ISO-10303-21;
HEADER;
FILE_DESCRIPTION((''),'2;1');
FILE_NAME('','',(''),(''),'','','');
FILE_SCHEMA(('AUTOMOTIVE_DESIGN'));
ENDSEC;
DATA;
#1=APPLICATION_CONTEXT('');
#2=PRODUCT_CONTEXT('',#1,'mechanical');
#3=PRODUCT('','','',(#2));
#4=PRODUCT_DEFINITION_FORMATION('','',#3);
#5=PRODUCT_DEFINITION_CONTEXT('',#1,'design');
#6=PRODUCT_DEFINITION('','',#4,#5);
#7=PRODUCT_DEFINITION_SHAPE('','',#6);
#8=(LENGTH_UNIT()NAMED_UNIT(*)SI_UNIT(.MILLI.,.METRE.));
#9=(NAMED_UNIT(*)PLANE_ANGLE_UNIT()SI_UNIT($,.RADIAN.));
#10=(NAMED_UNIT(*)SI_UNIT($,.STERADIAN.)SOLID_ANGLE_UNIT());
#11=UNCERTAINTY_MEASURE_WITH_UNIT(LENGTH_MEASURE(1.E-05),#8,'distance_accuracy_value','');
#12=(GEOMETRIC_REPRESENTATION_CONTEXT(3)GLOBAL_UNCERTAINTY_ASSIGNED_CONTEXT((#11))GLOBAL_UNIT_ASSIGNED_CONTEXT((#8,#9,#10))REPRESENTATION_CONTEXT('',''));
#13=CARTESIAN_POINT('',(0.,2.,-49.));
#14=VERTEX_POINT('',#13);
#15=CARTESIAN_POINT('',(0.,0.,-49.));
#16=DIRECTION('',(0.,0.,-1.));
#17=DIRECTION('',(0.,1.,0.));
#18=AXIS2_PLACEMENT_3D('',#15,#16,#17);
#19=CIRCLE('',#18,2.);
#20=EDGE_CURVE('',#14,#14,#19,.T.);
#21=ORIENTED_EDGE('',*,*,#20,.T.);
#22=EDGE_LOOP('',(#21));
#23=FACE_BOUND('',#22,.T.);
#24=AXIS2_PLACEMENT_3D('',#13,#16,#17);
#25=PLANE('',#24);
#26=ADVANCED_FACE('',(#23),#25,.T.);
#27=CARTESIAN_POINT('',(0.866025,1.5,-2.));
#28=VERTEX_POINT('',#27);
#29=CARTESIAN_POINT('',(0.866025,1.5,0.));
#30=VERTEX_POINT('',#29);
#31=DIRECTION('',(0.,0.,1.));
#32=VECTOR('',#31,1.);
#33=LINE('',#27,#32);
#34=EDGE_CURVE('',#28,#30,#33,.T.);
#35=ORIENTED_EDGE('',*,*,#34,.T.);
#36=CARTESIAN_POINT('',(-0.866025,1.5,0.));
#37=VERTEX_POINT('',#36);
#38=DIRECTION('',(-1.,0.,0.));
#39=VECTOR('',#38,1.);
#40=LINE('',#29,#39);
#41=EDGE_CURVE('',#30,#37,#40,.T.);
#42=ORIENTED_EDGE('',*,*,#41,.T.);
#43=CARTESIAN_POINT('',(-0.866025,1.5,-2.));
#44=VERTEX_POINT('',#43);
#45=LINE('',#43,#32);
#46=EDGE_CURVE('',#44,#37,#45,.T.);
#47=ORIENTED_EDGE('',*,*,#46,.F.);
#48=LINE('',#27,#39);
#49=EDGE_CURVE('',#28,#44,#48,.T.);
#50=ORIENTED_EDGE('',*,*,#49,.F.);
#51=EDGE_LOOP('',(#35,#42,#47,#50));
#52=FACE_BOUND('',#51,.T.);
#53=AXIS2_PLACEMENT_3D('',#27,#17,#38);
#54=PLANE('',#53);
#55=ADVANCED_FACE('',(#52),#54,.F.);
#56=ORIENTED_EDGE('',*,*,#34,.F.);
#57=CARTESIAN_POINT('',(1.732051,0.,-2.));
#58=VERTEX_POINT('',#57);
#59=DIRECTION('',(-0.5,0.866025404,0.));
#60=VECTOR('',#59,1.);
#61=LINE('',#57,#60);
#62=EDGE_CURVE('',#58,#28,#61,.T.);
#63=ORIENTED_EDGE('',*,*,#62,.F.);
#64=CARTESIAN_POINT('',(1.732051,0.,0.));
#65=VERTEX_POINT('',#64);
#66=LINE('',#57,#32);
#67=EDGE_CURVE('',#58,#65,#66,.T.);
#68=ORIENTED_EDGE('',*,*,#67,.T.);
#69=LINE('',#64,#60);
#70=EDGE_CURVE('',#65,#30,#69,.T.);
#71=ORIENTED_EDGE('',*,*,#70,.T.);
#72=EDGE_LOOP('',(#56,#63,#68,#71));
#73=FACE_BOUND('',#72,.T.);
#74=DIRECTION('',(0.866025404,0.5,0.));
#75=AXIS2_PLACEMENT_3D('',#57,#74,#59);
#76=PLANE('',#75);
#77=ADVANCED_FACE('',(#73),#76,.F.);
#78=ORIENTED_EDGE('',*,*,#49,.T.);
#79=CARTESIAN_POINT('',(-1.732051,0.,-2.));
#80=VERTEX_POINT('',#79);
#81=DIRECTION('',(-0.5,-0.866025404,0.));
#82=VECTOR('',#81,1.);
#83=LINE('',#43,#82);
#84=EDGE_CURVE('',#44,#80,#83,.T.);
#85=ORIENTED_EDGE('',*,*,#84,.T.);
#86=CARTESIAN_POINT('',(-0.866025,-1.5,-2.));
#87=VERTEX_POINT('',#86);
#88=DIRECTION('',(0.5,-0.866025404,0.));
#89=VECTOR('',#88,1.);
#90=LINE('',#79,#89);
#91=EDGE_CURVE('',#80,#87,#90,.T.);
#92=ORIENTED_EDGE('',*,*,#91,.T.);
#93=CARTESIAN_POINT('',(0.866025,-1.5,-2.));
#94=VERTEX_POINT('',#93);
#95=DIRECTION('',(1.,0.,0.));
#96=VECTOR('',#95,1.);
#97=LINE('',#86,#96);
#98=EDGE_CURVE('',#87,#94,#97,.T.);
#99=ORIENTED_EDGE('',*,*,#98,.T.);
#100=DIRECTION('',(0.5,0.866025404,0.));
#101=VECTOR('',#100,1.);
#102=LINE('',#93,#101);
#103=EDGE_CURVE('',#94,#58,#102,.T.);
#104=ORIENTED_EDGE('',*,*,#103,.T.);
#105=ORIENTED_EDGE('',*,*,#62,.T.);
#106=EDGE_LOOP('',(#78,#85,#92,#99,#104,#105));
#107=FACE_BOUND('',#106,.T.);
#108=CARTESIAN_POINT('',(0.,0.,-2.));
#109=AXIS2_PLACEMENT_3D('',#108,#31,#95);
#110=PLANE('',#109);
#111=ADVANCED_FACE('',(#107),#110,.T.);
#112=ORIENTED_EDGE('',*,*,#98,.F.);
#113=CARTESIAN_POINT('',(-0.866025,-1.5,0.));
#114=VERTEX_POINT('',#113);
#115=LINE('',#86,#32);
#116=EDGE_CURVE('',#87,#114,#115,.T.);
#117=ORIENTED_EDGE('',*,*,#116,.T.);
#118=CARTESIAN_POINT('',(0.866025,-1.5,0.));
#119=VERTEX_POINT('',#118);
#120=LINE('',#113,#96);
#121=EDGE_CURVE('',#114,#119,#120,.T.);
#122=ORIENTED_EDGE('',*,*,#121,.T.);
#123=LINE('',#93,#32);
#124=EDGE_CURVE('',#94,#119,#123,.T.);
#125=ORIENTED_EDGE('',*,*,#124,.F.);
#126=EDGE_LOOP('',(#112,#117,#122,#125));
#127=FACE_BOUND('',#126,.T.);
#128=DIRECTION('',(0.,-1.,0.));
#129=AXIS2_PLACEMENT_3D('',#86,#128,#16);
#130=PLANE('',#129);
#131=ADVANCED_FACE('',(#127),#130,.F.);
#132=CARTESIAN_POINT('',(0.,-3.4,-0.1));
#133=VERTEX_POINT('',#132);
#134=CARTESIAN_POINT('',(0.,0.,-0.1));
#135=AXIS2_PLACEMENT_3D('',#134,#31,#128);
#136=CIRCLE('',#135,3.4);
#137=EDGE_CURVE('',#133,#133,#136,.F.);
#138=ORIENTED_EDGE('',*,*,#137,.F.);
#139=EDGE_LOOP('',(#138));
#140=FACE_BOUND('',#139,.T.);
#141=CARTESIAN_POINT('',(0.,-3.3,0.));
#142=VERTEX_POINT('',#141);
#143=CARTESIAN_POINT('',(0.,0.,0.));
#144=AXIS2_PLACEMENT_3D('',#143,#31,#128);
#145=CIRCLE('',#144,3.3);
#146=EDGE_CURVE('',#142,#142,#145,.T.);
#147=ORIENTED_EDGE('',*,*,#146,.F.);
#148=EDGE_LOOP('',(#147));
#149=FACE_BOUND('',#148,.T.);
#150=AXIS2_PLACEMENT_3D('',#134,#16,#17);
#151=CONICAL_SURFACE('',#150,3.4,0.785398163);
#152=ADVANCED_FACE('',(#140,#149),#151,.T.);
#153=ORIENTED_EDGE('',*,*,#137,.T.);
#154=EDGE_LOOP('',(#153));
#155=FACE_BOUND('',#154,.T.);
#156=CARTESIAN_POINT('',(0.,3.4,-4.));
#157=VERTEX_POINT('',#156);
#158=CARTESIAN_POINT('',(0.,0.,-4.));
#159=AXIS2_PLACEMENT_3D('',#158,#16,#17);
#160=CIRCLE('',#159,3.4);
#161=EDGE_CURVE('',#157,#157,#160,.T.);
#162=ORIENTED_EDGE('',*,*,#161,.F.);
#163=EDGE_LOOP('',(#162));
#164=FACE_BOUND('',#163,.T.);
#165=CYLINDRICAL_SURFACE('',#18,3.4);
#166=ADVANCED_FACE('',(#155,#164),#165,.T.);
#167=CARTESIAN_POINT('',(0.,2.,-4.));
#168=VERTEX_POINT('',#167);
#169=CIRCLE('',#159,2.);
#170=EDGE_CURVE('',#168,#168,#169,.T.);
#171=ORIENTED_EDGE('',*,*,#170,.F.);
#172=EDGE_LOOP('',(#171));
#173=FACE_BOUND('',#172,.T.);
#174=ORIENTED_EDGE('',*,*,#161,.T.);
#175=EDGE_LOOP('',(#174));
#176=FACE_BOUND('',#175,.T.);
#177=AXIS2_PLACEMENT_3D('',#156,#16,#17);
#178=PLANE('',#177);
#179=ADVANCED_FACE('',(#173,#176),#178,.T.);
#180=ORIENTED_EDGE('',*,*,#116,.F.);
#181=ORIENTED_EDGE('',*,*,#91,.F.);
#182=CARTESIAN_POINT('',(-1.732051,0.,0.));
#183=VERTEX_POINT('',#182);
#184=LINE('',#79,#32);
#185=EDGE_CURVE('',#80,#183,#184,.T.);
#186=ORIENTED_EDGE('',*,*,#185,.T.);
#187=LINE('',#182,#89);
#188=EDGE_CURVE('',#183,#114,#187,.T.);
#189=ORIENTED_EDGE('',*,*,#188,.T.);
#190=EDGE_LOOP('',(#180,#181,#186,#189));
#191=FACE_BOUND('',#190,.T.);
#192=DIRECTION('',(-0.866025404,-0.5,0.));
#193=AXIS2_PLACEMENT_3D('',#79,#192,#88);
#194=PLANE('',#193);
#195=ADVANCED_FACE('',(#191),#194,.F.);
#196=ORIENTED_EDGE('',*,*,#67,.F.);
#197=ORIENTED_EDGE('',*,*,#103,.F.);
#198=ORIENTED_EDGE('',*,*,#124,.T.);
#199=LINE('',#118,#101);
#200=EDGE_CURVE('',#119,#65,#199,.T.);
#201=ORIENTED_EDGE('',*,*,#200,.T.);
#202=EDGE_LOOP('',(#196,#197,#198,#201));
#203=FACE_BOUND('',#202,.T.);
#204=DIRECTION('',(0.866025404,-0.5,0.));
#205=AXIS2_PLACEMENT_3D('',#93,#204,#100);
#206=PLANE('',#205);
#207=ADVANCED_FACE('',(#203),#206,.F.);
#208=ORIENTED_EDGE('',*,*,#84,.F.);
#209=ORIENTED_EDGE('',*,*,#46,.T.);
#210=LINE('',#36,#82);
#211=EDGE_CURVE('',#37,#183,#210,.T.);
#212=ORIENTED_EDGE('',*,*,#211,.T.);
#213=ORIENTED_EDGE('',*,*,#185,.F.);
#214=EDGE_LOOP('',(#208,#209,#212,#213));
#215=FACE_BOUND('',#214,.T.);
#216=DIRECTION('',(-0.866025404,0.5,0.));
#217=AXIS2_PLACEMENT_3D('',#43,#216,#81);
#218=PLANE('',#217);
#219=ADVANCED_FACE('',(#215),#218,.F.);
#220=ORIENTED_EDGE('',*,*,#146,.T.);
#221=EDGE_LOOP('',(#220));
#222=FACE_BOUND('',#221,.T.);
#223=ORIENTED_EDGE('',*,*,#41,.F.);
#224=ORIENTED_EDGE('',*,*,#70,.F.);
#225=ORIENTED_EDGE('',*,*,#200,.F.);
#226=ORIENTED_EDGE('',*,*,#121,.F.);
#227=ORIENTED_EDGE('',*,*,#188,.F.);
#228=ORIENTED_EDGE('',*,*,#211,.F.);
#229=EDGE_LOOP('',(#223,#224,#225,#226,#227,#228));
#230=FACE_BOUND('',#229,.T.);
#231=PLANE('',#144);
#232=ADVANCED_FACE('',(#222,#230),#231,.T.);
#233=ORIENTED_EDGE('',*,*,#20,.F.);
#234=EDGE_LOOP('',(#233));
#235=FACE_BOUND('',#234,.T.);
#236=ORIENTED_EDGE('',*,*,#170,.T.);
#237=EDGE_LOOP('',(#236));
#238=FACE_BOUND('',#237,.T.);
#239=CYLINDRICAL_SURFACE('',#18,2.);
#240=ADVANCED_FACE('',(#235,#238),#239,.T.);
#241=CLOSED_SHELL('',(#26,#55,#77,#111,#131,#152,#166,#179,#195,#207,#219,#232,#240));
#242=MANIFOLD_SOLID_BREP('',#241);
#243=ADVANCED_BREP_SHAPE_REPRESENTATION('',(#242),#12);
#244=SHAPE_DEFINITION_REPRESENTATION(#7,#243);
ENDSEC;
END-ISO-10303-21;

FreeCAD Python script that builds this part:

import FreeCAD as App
import Part
import Sketcher
from FreeCAD import Vector
Q = App.Units.Quantity


def edges_at(feature, points):
    """Names of the edges that pass closest to the given points."""
    edges = feature.Shape.Edges
    near = lambda p: min(range(len(edges)), key=lambda i: edges[i].distToShape(Part.Vertex(*p))[0])
    return sorted({f"Edge{near(p) + 1}" for p in points})


def add_polygon(sketch, points):
    """Adds a closed chain of lines whose ends are joined by coincident constraints."""
    first, n = sketch.GeometryCount, len(points)
    for a, b in zip(points, points[1:] + points[:1]):
        sketch.addGeometry(Part.LineSegment(App.Vector(*a, 0), App.Vector(*b, 0)), False)
    for i in range(n):
        sketch.addConstraint(Sketcher.Constraint("Coincident", first + i, 2, first + (i + 1) % n, 1))

doc = App.newDocument("Part")
body = doc.addObject("PartDesign::Body", "Body")

# Sketch on YZ plane
sketch1 = doc.addObject("Sketcher::SketchObject", "Sketch")
body.addObject(sketch1)
sketch1.AttachmentSupport = (doc.YZ_Plane, [""])
sketch1.MapMode = "FlatFace"
add_polygon(sketch1, [(3.4, 0), (0, 0), (0, -49), (2, -49), (2, -4), (3.4, -4)])  # lines 0-5
sketch1.addConstraint(Sketcher.Constraint("Horizontal", 0))
sketch1.addConstraint(Sketcher.Constraint("Vertical", 1))
sketch1.addConstraint(Sketcher.Constraint("Horizontal", 2))
sketch1.addConstraint(Sketcher.Constraint("Vertical", 3))
sketch1.addConstraint(Sketcher.Constraint("Horizontal", 4))
sketch1.addConstraint(Sketcher.Constraint("Vertical", 5))
sketch1.addConstraint(Sketcher.Constraint("Coincident", 0, 2, -1, 1))
sketch1.addConstraint(Sketcher.Constraint("DistanceX", 2, 1, 2, 2, 2.0))
sketch1.addConstraint(Sketcher.Constraint("DistanceY", 1, 2, 1, 1, 49.0))
sketch1.addConstraint(Sketcher.Constraint("DistanceY", 3, 1, 3, 2, 45.0))
sketch1.addConstraint(Sketcher.Constraint("DistanceX", 0, 2, 0, 1, 3.4))
revolution = doc.addObject("PartDesign::Revolution", "Revolution")
body.addObject(revolution)
revolution.Profile = sketch1
revolution.ReferenceAxis = (sketch1, ["V_Axis"])
revolution.Angle = 360

# Sketch on XY plane
sketch2 = doc.addObject("Sketcher::SketchObject", "Sketch001")
body.addObject(sketch2)
sketch2.AttachmentSupport = (doc.XY_Plane, [""])
sketch2.MapMode = "FlatFace"
add_polygon(sketch2, [(0.9, 1.5), (-0.9, 1.5), (-1.7, 0), (-0.9, -1.5), (0.9, -1.5), (1.7, 0)])  # lines 0-5
sketch2.addConstraint(Sketcher.Constraint("Horizontal", 0))
sketch2.addConstraint(Sketcher.Constraint("Horizontal", 3))
sketch2.addConstraint(Sketcher.Constraint("Symmetric", 0, 2, 3, 2, -1, 1))
sketch2.addConstraint(Sketcher.Constraint("Symmetric", 1, 2, 4, 2, -1, 1))
sketch2.addConstraint(Sketcher.Constraint("PointOnObject", 1, 2, -1))
sketch2.addConstraint(Sketcher.Constraint("Parallel", 2, 5))
sketch2.addConstraint(Sketcher.Constraint("Vertical", 0, 2, 2, 2))
sketch2.addConstraint(Sketcher.Constraint("Angle", 1, Q("-120 deg")))
sketch2.addConstraint(Sketcher.Constraint("DistanceY", 2, 2, 0, 2, 3.0))
sketch2.addConstraint(Sketcher.Constraint("DistanceX", 0, 2, 0, 1, 1.732051))
pocket1 = doc.addObject("PartDesign::Pocket", "Pocket")
body.addObject(pocket1)
pocket1.Profile = sketch2
pocket1.Length = 2
doc.recompute()

chamfer = doc.addObject("PartDesign::Chamfer", "Chamfer")
body.addObject(chamfer)
chamfer.Base = (pocket1, edges_at(pocket1, [(0, -3.4, 0)]))
chamfer.Size = 0.1

doc.recompute()
